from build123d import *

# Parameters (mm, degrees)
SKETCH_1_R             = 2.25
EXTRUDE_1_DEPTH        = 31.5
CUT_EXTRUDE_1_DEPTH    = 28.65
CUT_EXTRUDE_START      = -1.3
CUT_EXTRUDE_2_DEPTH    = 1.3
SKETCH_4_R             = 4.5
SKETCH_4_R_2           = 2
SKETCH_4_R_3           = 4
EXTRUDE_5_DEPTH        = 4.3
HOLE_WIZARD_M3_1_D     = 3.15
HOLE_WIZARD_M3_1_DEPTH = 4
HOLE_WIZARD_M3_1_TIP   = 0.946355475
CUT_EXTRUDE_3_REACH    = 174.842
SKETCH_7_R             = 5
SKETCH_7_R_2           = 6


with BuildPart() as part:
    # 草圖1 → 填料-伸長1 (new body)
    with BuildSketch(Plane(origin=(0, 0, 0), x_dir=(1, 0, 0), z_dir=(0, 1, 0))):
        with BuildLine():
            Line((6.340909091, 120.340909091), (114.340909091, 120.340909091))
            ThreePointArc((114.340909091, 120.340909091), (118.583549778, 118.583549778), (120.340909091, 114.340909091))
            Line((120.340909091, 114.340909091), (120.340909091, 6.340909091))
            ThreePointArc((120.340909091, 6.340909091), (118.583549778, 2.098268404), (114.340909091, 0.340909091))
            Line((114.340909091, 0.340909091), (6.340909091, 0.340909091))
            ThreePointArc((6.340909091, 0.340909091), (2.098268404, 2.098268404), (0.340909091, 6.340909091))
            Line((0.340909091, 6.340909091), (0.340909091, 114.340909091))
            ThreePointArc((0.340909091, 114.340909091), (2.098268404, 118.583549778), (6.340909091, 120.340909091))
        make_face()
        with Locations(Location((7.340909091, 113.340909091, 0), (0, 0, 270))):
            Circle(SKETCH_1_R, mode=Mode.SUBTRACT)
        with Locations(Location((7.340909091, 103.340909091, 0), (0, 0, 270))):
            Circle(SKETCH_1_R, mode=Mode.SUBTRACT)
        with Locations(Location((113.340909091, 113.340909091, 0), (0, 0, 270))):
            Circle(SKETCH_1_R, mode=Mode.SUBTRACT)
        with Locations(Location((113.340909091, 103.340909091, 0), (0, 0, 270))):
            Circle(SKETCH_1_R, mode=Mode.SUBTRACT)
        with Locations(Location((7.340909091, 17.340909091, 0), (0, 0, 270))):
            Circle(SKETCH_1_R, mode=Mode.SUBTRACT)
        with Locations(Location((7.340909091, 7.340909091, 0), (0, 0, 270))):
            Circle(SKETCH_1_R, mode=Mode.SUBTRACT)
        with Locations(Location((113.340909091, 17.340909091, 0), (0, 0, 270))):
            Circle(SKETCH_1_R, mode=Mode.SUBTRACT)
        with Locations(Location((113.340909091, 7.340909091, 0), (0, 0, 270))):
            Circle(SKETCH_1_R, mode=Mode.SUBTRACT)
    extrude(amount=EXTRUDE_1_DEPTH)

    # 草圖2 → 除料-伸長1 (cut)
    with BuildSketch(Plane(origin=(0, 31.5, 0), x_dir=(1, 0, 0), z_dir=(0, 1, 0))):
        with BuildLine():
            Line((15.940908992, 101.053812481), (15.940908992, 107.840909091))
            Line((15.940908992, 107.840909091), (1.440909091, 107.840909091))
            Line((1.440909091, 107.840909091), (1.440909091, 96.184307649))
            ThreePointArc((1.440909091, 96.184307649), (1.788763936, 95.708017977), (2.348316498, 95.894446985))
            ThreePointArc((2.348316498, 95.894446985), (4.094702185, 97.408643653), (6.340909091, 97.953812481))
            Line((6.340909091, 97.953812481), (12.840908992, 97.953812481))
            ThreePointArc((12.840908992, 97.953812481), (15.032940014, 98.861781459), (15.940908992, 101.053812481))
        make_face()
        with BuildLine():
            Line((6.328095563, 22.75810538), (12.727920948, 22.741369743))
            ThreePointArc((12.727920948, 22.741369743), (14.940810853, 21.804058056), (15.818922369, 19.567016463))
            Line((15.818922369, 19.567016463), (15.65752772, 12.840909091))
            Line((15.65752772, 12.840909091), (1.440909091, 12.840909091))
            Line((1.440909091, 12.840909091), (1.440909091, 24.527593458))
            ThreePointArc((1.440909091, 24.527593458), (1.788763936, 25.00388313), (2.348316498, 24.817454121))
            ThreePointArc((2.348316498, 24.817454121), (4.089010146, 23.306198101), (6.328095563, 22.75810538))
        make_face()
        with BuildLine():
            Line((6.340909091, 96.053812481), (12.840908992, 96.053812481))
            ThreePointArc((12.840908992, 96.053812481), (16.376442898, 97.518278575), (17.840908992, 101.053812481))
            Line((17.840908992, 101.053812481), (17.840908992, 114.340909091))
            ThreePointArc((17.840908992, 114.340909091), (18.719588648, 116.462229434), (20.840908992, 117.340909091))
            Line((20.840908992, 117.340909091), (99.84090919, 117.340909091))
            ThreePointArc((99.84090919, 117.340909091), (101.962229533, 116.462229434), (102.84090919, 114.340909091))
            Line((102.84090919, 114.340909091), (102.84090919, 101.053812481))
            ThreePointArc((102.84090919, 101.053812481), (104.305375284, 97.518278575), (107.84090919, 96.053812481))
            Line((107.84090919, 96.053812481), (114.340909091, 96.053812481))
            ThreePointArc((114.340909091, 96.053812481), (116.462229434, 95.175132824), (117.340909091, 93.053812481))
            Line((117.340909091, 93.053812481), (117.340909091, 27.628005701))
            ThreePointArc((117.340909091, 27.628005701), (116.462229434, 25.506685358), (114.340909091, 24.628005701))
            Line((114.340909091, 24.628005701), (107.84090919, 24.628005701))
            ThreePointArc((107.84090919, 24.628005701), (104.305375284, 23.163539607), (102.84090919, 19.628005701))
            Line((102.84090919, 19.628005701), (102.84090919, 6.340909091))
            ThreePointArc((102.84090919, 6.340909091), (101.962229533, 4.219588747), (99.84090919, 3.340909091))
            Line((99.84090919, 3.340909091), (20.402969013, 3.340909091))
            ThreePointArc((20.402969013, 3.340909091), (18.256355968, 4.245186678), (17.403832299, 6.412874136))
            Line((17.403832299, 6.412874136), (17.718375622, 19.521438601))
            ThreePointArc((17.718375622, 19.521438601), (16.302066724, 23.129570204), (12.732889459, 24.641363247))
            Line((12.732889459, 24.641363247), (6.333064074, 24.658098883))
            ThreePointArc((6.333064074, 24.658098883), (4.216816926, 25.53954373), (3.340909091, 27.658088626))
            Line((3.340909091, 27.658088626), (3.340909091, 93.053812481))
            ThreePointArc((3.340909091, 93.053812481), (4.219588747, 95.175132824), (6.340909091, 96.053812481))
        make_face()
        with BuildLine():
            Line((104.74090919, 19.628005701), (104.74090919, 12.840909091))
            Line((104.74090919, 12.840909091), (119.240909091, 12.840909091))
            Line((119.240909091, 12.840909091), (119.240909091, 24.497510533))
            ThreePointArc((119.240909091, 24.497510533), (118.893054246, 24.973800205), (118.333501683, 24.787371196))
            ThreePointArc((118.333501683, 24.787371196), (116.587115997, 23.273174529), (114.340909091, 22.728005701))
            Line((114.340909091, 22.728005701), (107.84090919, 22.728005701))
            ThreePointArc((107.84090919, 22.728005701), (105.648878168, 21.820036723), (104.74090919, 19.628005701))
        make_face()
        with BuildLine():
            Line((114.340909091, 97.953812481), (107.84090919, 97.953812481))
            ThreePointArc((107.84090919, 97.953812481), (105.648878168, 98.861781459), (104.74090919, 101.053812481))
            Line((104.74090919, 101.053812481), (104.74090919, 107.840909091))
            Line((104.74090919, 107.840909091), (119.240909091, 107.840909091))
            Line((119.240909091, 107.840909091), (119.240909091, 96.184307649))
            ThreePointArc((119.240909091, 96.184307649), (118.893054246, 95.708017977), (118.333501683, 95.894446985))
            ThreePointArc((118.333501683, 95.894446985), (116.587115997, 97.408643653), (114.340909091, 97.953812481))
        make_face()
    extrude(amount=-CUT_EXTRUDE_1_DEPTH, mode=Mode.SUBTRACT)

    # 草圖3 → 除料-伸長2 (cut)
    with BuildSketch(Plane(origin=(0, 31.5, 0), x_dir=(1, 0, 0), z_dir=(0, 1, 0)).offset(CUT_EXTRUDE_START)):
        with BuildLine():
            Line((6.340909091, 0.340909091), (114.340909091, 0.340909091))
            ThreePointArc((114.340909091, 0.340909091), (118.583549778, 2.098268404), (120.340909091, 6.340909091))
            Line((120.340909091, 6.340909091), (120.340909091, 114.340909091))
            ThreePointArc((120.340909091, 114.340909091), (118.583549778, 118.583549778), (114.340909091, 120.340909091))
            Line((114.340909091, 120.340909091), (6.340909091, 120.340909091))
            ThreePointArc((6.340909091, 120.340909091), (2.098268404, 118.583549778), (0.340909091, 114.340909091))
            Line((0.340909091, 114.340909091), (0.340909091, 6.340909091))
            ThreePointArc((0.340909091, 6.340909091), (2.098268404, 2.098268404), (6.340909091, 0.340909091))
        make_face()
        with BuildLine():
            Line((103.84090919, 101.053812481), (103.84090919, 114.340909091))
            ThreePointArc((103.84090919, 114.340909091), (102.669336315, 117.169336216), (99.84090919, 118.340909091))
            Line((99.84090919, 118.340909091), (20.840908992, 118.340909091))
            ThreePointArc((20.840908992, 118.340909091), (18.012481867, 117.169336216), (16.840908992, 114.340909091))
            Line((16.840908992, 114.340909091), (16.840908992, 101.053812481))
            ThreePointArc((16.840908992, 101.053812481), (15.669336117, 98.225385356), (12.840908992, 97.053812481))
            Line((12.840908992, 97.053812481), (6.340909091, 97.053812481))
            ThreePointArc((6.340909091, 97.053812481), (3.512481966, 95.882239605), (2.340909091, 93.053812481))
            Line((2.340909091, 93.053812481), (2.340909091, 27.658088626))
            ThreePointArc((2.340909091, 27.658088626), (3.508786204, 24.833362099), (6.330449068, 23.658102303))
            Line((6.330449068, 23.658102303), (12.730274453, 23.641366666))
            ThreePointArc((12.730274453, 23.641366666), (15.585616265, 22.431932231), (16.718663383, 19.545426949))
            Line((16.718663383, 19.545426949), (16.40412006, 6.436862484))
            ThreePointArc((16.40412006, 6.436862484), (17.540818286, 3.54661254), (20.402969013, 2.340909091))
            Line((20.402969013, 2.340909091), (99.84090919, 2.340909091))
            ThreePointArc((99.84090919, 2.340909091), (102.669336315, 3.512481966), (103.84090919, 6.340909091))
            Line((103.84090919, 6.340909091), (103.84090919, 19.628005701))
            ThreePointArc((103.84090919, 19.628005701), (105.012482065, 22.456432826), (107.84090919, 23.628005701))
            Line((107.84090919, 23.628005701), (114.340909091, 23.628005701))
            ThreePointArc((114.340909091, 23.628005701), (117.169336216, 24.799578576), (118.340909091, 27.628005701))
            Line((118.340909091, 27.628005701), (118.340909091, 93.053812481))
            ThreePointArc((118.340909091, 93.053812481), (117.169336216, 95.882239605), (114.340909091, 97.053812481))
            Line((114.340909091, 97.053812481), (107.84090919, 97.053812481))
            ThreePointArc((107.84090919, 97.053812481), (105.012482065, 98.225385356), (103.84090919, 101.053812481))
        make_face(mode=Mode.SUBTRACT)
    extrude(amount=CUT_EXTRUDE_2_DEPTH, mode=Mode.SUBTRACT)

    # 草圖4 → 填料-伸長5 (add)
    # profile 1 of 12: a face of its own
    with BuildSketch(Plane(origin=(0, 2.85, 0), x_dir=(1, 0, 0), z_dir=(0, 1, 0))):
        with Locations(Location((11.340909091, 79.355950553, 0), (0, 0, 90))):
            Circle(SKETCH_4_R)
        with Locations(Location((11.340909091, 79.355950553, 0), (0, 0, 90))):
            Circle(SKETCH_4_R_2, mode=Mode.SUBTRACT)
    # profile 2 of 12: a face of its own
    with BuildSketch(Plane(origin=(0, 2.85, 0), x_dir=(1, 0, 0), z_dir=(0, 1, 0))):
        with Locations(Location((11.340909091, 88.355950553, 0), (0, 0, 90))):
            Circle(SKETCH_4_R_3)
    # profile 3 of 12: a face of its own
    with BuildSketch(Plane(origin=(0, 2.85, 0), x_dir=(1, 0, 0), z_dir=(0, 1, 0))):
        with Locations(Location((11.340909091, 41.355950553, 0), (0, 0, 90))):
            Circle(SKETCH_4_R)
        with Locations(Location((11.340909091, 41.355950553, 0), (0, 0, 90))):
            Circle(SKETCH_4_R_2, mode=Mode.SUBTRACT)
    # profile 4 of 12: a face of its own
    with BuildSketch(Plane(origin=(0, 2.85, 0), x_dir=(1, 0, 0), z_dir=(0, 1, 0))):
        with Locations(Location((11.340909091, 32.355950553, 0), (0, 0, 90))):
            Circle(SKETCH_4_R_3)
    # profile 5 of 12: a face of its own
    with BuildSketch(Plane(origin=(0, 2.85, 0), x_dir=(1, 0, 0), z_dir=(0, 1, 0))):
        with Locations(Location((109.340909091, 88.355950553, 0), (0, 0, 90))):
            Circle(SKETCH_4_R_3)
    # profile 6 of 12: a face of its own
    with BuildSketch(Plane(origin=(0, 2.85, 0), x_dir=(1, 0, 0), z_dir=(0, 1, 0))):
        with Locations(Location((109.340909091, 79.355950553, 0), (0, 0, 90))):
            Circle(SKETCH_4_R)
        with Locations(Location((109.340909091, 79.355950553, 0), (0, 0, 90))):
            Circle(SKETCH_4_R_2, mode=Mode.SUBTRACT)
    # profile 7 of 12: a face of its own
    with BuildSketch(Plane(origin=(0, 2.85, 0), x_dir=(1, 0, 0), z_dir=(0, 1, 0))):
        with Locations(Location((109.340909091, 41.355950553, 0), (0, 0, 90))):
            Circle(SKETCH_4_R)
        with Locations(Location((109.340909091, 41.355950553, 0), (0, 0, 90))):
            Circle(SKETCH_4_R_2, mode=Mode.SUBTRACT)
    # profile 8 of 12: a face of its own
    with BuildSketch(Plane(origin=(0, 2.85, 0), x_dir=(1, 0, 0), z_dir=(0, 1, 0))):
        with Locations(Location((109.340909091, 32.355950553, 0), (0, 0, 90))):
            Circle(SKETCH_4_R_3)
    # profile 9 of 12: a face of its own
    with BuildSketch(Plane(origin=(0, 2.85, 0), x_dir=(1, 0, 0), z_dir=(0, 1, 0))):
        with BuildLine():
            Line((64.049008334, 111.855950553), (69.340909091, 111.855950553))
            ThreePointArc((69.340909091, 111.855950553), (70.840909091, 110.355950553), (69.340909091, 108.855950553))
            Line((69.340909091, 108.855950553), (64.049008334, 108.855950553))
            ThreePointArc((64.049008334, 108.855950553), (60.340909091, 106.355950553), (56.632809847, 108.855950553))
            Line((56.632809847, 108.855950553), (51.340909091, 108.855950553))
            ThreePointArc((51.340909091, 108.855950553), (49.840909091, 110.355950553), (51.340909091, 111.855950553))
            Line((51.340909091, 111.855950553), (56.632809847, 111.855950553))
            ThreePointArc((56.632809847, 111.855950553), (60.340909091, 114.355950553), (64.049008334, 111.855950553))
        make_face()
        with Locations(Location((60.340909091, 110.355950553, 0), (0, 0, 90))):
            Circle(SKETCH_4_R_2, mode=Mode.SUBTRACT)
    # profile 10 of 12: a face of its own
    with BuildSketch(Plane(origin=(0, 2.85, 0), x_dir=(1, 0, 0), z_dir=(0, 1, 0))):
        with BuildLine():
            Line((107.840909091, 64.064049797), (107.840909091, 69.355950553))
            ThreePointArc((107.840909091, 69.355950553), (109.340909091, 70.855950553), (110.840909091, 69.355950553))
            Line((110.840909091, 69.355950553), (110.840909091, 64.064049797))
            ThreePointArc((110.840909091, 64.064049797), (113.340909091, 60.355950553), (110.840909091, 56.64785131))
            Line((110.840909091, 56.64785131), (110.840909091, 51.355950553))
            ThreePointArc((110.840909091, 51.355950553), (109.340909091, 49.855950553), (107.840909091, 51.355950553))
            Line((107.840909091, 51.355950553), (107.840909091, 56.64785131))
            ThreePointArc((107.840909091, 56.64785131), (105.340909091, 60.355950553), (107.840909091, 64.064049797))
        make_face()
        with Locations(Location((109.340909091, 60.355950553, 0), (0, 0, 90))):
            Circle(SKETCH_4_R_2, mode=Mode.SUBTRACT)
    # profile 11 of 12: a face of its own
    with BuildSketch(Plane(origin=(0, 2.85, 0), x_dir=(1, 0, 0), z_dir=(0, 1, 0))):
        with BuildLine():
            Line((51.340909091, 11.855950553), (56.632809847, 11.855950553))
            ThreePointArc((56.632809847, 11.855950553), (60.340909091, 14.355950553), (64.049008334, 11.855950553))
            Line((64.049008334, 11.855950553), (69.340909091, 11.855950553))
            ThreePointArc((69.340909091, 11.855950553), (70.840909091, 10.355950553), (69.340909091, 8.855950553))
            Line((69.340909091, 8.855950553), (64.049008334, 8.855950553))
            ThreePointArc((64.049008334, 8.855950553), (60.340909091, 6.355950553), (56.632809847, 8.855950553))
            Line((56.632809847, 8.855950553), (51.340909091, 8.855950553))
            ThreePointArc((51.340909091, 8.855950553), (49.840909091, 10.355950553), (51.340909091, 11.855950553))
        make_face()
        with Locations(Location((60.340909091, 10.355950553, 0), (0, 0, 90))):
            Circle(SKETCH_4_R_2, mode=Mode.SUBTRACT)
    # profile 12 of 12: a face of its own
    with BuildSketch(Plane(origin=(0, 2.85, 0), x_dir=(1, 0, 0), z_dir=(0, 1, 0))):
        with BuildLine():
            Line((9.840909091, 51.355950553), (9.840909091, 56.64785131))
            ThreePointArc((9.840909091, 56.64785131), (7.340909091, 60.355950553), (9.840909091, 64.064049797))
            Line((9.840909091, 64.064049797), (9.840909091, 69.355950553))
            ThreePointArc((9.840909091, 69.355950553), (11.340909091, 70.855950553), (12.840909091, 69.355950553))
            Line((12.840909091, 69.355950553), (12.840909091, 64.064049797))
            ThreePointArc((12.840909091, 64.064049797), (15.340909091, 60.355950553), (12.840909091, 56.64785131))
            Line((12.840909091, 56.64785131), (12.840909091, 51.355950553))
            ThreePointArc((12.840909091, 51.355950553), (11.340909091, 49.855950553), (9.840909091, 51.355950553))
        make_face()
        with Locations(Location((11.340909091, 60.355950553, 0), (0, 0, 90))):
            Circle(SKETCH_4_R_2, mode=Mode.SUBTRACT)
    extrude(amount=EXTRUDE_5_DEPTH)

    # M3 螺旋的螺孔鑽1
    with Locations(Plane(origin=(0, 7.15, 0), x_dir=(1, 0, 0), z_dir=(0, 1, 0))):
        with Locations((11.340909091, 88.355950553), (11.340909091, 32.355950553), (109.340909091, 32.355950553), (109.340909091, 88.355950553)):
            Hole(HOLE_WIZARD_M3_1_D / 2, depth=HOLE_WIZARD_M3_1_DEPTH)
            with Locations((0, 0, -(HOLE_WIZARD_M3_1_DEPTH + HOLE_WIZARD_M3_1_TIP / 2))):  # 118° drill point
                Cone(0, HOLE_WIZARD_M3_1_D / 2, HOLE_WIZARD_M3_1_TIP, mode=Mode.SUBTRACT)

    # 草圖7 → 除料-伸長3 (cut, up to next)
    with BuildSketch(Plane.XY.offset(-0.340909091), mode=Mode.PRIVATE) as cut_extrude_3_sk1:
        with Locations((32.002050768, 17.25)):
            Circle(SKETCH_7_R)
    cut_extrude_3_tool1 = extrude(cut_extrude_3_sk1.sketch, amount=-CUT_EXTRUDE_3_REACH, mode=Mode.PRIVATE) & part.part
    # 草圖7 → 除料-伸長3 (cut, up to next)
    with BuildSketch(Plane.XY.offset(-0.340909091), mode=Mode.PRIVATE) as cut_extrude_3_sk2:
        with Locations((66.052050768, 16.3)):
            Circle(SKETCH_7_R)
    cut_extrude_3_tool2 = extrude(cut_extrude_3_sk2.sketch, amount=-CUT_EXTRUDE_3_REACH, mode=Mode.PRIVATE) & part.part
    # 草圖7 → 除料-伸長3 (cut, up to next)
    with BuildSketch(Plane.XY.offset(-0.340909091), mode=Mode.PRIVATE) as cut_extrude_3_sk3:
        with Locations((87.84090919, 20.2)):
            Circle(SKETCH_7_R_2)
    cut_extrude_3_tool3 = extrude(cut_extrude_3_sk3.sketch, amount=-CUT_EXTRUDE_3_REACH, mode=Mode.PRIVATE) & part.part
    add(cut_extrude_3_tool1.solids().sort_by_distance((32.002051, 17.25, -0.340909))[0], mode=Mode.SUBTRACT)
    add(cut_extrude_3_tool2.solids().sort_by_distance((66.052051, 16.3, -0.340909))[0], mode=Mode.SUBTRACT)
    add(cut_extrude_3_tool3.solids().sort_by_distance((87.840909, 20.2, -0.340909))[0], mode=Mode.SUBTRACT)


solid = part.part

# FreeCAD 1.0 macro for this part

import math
import FreeCAD as App
import Part
import Sketcher
from FreeCAD import Vector

doc = App.newDocument("Part")
body = doc.addObject("PartDesign::Body", "Body")

# Sketch on XZ plane
sketch1 = body.newObject("Sketcher::SketchObject", "Sketch")
sketch1.AttachmentSupport = (doc.getObject("XZ_Plane"), [""])
sketch1.MapMode = "FlatFace"
sketch1.addGeometry([
    Part.LineSegment(Vector(114.3, -120.3, 0), Vector(6.3, -120.3, 0)),  # 0
    Part.ArcOfCircle(Part.Circle(Vector(6.3, -114.3, 0), Vector(0, 0, 1), 6), math.radians(180), math.radians(270)),  # 1
    Part.LineSegment(Vector(0.3, -114.3, 0), Vector(0.3, -6.3, 0)),  # 2
    Part.ArcOfCircle(Part.Circle(Vector(6.3, -6.3, 0), Vector(0, 0, 1), 6), math.radians(90), math.radians(180)),  # 3
    Part.LineSegment(Vector(6.3, -0.3, 0), Vector(114.3, -0.3, 0)),  # 4
    Part.ArcOfCircle(Part.Circle(Vector(114.3, -6.3, 0), Vector(0, 0, 1), 6), math.radians(0), math.radians(90)),  # 5
    Part.LineSegment(Vector(120.3, -6.3, 0), Vector(120.3, -114.3, 0)),  # 6
    Part.ArcOfCircle(Part.Circle(Vector(114.3, -114.3, 0), Vector(0, 0, 1), 6), math.radians(-90), math.radians(0)),  # 7
    Part.Circle(Vector(113.3, -7.3, 0), Vector(0, 0, 1), 2.2),  # 8
    Part.Circle(Vector(113.3, -17.3, 0), Vector(0, 0, 1), 2.2),  # 9
    Part.Circle(Vector(7.3, -7.3, 0), Vector(0, 0, 1), 2.2),  # 10
    Part.Circle(Vector(7.3, -17.3, 0), Vector(0, 0, 1), 2.2),  # 11
    Part.Circle(Vector(113.3, -103.3, 0), Vector(0, 0, 1), 2.2),  # 12
    Part.Circle(Vector(113.3, -113.3, 0), Vector(0, 0, 1), 2.2),  # 13
    Part.Circle(Vector(7.3, -103.3, 0), Vector(0, 0, 1), 2.2),  # 14
    Part.Circle(Vector(7.3, -113.3, 0), Vector(0, 0, 1), 2.2),  # 15
], False)
sketch1.addConstraint([
    Sketcher.Constraint("Tangent", 0, 2, 1, 2),
    Sketcher.Constraint("Tangent", 1, 1, 2, 1),
    Sketcher.Constraint("Tangent", 2, 2, 3, 2),
    Sketcher.Constraint("Tangent", 3, 1, 4, 1),
    Sketcher.Constraint("Tangent", 4, 2, 5, 2),
    Sketcher.Constraint("Tangent", 5, 1, 6, 1),
    Sketcher.Constraint("Tangent", 6, 2, 7, 2),
    Sketcher.Constraint("Tangent", 7, 1, 0, 1),
    Sketcher.Constraint("Horizontal", 0),
    Sketcher.Constraint("Vertical", 2),
    Sketcher.Constraint("Horizontal", 4),
    Sketcher.Constraint("Vertical", 6),
    Sketcher.Constraint("Equal", 1, 3),
    Sketcher.Constraint("Equal", 3, 5),
    Sketcher.Constraint("Equal", 5, 7),
    Sketcher.Constraint("Equal", 8, 9),
    Sketcher.Constraint("Equal", 9, 10),
    Sketcher.Constraint("Equal", 10, 11),
    Sketcher.Constraint("Equal", 11, 12),
    Sketcher.Constraint("Equal", 12, 13),
    Sketcher.Constraint("Equal", 13, 14),
    Sketcher.Constraint("Equal", 14, 15),
    Sketcher.Constraint("Horizontal", 8, 3, 10, 3),
    Sketcher.Constraint("Horizontal", 9, 3, 11, 3),
    Sketcher.Constraint("Horizontal", 12, 3, 14, 3),
    Sketcher.Constraint("Horizontal", 13, 3, 15, 3),
    Sketcher.Constraint("Vertical", 8, 3, 9, 3),
    Sketcher.Constraint("Vertical", 10, 3, 11, 3),
    Sketcher.Constraint("Vertical", 9, 3, 12, 3),
    Sketcher.Constraint("Vertical", 12, 3, 13, 3),
    Sketcher.Constraint("Vertical", 11, 3, 14, 3),
    Sketcher.Constraint("Vertical", 14, 3, 15, 3),
    Sketcher.Constraint("Equal", 4, 2),
    Sketcher.Constraint("Radius", 1, 6.0),
    Sketcher.Constraint("Diameter", 8, 4.5),
    Sketcher.Constraint("DistanceX", 0, 2, 0, 1, 108.0),
    Sketcher.Constraint("DistanceX", 8, 3, 5, 3, 1.0),
    Sketcher.Constraint("DistanceY", 8, 3, 5, 3, 1.0),
    Sketcher.Constraint("DistanceY", 9, 3, 8, 3, 10.0),
    Sketcher.Constraint("DistanceX", 3, 3, 10, 3, 1.0),
    Sketcher.Constraint("DistanceY", 7, 3, 12, 3, 11.0),
    Sketcher.Constraint("DistanceY", 7, 3, 13, 3, 1.0),
    Sketcher.Constraint("DistanceX", -1, 1, 1, 3, 6.340909),
    Sketcher.Constraint("DistanceY", 1, 3, -1, 1, 114.340909),
])
pad1 = body.newObject("PartDesign::Pad", "Pad")
pad1.Profile = sketch1
pad1.Length = 31.5
pad1.Reversed = True

# Sketch on XZ plane
sketch2 = body.newObject("Sketcher::SketchObject", "Sketch001")
sketch2.AttachmentSupport = (doc.getObject("XZ_Plane"), [""])
sketch2.MapMode = "FlatFace"
sketch2.AttachmentOffset = App.Placement(Vector(0, 0, -31.5), App.Rotation())
sketch2.addGeometry([
    Part.LineSegment(Vector(15.9, -101.1, 0), Vector(15.9, -107.8, 0)),  # 0
    Part.LineSegment(Vector(15.9, -107.8, 0), Vector(1.4, -107.8, 0)),  # 1
    Part.LineSegment(Vector(1.4, -107.8, 0), Vector(1.4, -96.2, 0)),  # 2
    Part.ArcOfCircle(Part.Circle(Vector(1.9, -96.2, 0), Vector(0, 0, 1), 0.5), math.radians(35), math.radians(180)),  # 3
    Part.ArcOfCircle(Part.Circle(Vector(6.3, -93.1, 0), Vector(0, 0, 1), 4.9), math.radians(-145), math.radians(-90)),  # 4
    Part.LineSegment(Vector(6.3, -98, 0), Vector(12.8, -98, 0)),  # 5
    Part.ArcOfCircle(Part.Circle(Vector(12.8, -101.1, 0), Vector(0, 0, 1), 3.1), math.radians(0), math.radians(90)),  # 6
    Part.LineSegment(Vector(12.7, -22.7, 0), Vector(6.3, -22.8, 0)),  # 7
    Part.ArcOfCircle(Part.Circle(Vector(6.3, -27.7, 0), Vector(0, 0, 1), 4.9), math.radians(90), math.radians(145)),  # 8
    Part.ArcOfCircle(Part.Circle(Vector(1.9, -24.5, 0), Vector(0, 0, 1), 0.5), math.radians(180), math.radians(325)),  # 9
    Part.LineSegment(Vector(1.4, -24.5, 0), Vector(1.4, -12.8, 0)),  # 10
    Part.LineSegment(Vector(1.4, -12.8, 0), Vector(15.7, -12.8, 0)),  # 11
    Part.LineSegment(Vector(15.7, -12.8, 0), Vector(15.8, -19.6, 0)),  # 12
    Part.ArcOfCircle(Part.Circle(Vector(12.7, -19.6, 0), Vector(0, 0, 1), 3.1), math.radians(-90), math.radians(1)),  # 13
    Part.LineSegment(Vector(12.8, -96.1, 0), Vector(6.3, -96.1, 0)),  # 14
    Part.ArcOfCircle(Part.Circle(Vector(6.3, -93.1, 0), Vector(0, 0, 1), 3), math.radians(180), math.radians(270)),  # 15
    Part.LineSegment(Vector(3.3, -93.1, 0), Vector(3.3, -27.7, 0)),  # 16
    Part.ArcOfCircle(Part.Circle(Vector(6.3, -27.7, 0), Vector(0, 0, 1), 3), math.radians(90), math.radians(180)),  # 17
    Part.LineSegment(Vector(6.3, -24.7, 0), Vector(12.7, -24.6, 0)),  # 18
    Part.ArcOfCircle(Part.Circle(Vector(12.7, -19.6, 0), Vector(0, 0, 1), 5), math.radians(-90), math.radians(1)),  # 19
    Part.LineSegment(Vector(17.7, -19.5, 0), Vector(17.4, -6.4, 0)),  # 20
    Part.ArcOfCircle(Part.Circle(Vector(20.4, -6.3, 0), Vector(0, 0, 1), 3), math.radians(90), math.radians(181)),  # 21
    Part.LineSegment(Vector(20.4, -3.3, 0), Vector(99.8, -3.3, 0)),  # 22
    Part.ArcOfCircle(Part.Circle(Vector(99.8, -6.3, 0), Vector(0, 0, 1), 3), math.radians(0), math.radians(90)),  # 23
    Part.LineSegment(Vector(102.8, -6.3, 0), Vector(102.8, -19.6, 0)),  # 24
    Part.ArcOfCircle(Part.Circle(Vector(107.8, -19.6, 0), Vector(0, 0, 1), 5), math.radians(180), math.radians(270)),  # 25
    Part.LineSegment(Vector(107.8, -24.6, 0), Vector(114.3, -24.6, 0)),  # 26
    Part.ArcOfCircle(Part.Circle(Vector(114.3, -27.6, 0), Vector(0, 0, 1), 3), math.radians(0), math.radians(90)),  # 27
    Part.LineSegment(Vector(117.3, -27.6, 0), Vector(117.3, -93.1, 0)),  # 28
    Part.ArcOfCircle(Part.Circle(Vector(114.3, -93.1, 0), Vector(0, 0, 1), 3), math.radians(-90), math.radians(0)),  # 29
    Part.LineSegment(Vector(114.3, -96.1, 0), Vector(107.8, -96.1, 0)),  # 30
    Part.ArcOfCircle(Part.Circle(Vector(107.8, -101.1, 0), Vector(0, 0, 1), 5), math.radians(90), math.radians(180)),  # 31
    Part.LineSegment(Vector(102.8, -101.1, 0), Vector(102.8, -114.3, 0)),  # 32
    Part.ArcOfCircle(Part.Circle(Vector(99.8, -114.3, 0), Vector(0, 0, 1), 3), math.radians(-90), math.radians(0)),  # 33
    Part.LineSegment(Vector(99.8, -117.3, 0), Vector(20.8, -117.3, 0)),  # 34
    Part.ArcOfCircle(Part.Circle(Vector(20.8, -114.3, 0), Vector(0, 0, 1), 3), math.radians(180), math.radians(270)),  # 35
    Part.LineSegment(Vector(17.8, -114.3, 0), Vector(17.8, -101.1, 0)),  # 36
    Part.ArcOfCircle(Part.Circle(Vector(12.8, -101.1, 0), Vector(0, 0, 1), 5), math.radians(0), math.radians(90)),  # 37
    Part.LineSegment(Vector(104.7, -19.6, 0), Vector(104.7, -12.8, 0)),  # 38
    Part.LineSegment(Vector(104.7, -12.8, 0), Vector(119.2, -12.8, 0)),  # 39
    Part.LineSegment(Vector(119.2, -12.8, 0), Vector(119.2, -24.5, 0)),  # 40
    Part.ArcOfCircle(Part.Circle(Vector(118.7, -24.5, 0), Vector(0, 0, 1), 0.5), math.radians(-145), math.radians(0)),  # 41
    Part.ArcOfCircle(Part.Circle(Vector(114.3, -27.6, 0), Vector(0, 0, 1), 4.9), math.radians(35), math.radians(90)),  # 42
    Part.LineSegment(Vector(114.3, -22.7, 0), Vector(107.8, -22.7, 0)),  # 43
    Part.ArcOfCircle(Part.Circle(Vector(107.8, -19.6, 0), Vector(0, 0, 1), 3.1), math.radians(180), math.radians(270)),  # 44
    Part.LineSegment(Vector(107.8, -98, 0), Vector(114.3, -98, 0)),  # 45
    Part.ArcOfCircle(Part.Circle(Vector(114.3, -93.1, 0), Vector(0, 0, 1), 4.9), math.radians(-90), math.radians(-35)),  # 46
    Part.ArcOfCircle(Part.Circle(Vector(118.7, -96.2, 0), Vector(0, 0, 1), 0.5), math.radians(0), math.radians(145)),  # 47
    Part.LineSegment(Vector(119.2, -96.2, 0), Vector(119.2, -107.8, 0)),  # 48
    Part.LineSegment(Vector(119.2, -107.8, 0), Vector(104.7, -107.8, 0)),  # 49
    Part.LineSegment(Vector(104.7, -107.8, 0), Vector(104.7, -101.1, 0)),  # 50
    Part.ArcOfCircle(Part.Circle(Vector(107.8, -101.1, 0), Vector(0, 0, 1), 3.1), math.radians(90), math.radians(180)),  # 51
], False)
sketch2.addConstraint([
    Sketcher.Constraint("Coincident", 0, 2, 1, 1),
    Sketcher.Constraint("Coincident", 1, 2, 2, 1),
    Sketcher.Constraint("Tangent", 2, 2, 3, 2),
    Sketcher.Constraint("Tangent", 3, 1, 4, 1),
    Sketcher.Constraint("Tangent", 4, 2, 5, 1),
    Sketcher.Constraint("Tangent", 5, 2, 6, 2),
    Sketcher.Constraint("Tangent", 6, 1, 0, 1),
    Sketcher.Constraint("Tangent", 7, 2, 8, 1),
    Sketcher.Constraint("Tangent", 8, 2, 9, 2),
    Sketcher.Constraint("Tangent", 9, 1, 10, 1),
    Sketcher.Constraint("Coincident", 10, 2, 11, 1),
    Sketcher.Constraint("Coincident", 11, 2, 12, 1),
    Sketcher.Constraint("Tangent", 12, 2, 13, 2),
    Sketcher.Constraint("Tangent", 13, 1, 7, 1),
    Sketcher.Constraint("Tangent", 14, 2, 15, 2),
    Sketcher.Constraint("Tangent", 15, 1, 16, 1),
    Sketcher.Constraint("Tangent", 16, 2, 17, 2),
    Sketcher.Constraint("Tangent", 17, 1, 18, 1),
    Sketcher.Constraint("Tangent", 18, 2, 19, 1),
    Sketcher.Constraint("Tangent", 19, 2, 20, 1),
    Sketcher.Constraint("Tangent", 20, 2, 21, 2),
    Sketcher.Constraint("Tangent", 21, 1, 22, 1),
    Sketcher.Constraint("Tangent", 22, 2, 23, 2),
    Sketcher.Constraint("Tangent", 23, 1, 24, 1),
    Sketcher.Constraint("Tangent", 24, 2, 25, 1),
    Sketcher.Constraint("Tangent", 25, 2, 26, 1),
    Sketcher.Constraint("Tangent", 26, 2, 27, 2),
    Sketcher.Constraint("Tangent", 27, 1, 28, 1),
    Sketcher.Constraint("Tangent", 28, 2, 29, 2),
    Sketcher.Constraint("Tangent", 29, 1, 30, 1),
    Sketcher.Constraint("Tangent", 30, 2, 31, 1),
    Sketcher.Constraint("Tangent", 31, 2, 32, 1),
    Sketcher.Constraint("Tangent", 32, 2, 33, 2),
    Sketcher.Constraint("Tangent", 33, 1, 34, 1),
    Sketcher.Constraint("Tangent", 34, 2, 35, 2),
    Sketcher.Constraint("Tangent", 35, 1, 36, 1),
    Sketcher.Constraint("Tangent", 36, 2, 37, 1),
    Sketcher.Constraint("Tangent", 37, 2, 14, 1),
    Sketcher.Constraint("Coincident", 38, 2, 39, 1),
    Sketcher.Constraint("Coincident", 39, 2, 40, 1),
    Sketcher.Constraint("Tangent", 40, 2, 41, 2),
    Sketcher.Constraint("Tangent", 41, 1, 42, 1),
    Sketcher.Constraint("Tangent", 42, 2, 43, 1),
    Sketcher.Constraint("Tangent", 43, 2, 44, 2),
    Sketcher.Constraint("Tangent", 44, 1, 38, 1),
    Sketcher.Constraint("Tangent", 45, 2, 46, 1),
    Sketcher.Constraint("Tangent", 46, 2, 47, 2),
    Sketcher.Constraint("Tangent", 47, 1, 48, 1),
    Sketcher.Constraint("Coincident", 48, 2, 49, 1),
    Sketcher.Constraint("Coincident", 49, 2, 50, 1),
    Sketcher.Constraint("Tangent", 50, 2, 51, 2),
    Sketcher.Constraint("Tangent", 51, 1, 45, 1),
    Sketcher.Constraint("Vertical", 0),
    Sketcher.Constraint("Horizontal", 1),
    Sketcher.Constraint("Vertical", 2),
    Sketcher.Constraint("Horizontal", 5),
    Sketcher.Constraint("Vertical", 10),
    Sketcher.Constraint("Horizontal", 11),
    Sketcher.Constraint("Horizontal", 14),
    Sketcher.Constraint("Vertical", 16),
    Sketcher.Constraint("Horizontal", 22),
    Sketcher.Constraint("Vertical", 24),
    Sketcher.Constraint("Horizontal", 26),
    Sketcher.Constraint("Vertical", 28),
    Sketcher.Constraint("Horizontal", 30),
    Sketcher.Constraint("Vertical", 32),
    Sketcher.Constraint("Horizontal", 34),
    Sketcher.Constraint("Vertical", 36),
    Sketcher.Constraint("Vertical", 38),
    Sketcher.Constraint("Horizontal", 39),
    Sketcher.Constraint("Vertical", 40),
    Sketcher.Constraint("Horizontal", 43),
    Sketcher.Constraint("Horizontal", 45),
    Sketcher.Constraint("Vertical", 48),
    Sketcher.Constraint("Horizontal", 49),
    Sketcher.Constraint("Vertical", 50),
    Sketcher.Constraint("Coincident", 15, 3, 4, 3),
    Sketcher.Constraint("Coincident", 17, 3, 8, 3),
    Sketcher.Constraint("Coincident", 19, 3, 13, 3),
    Sketcher.Constraint("Coincident", 37, 3, 6, 3),
    Sketcher.Constraint("Coincident", 42, 3, 27, 3),
    Sketcher.Constraint("Coincident", 44, 3, 25, 3),
    Sketcher.Constraint("Coincident", 46, 3, 29, 3),
    Sketcher.Constraint("Coincident", 51, 3, 31, 3),
    Sketcher.Constraint("Equal", 4, 8),
    Sketcher.Constraint("Equal", 3, 9),
    Sketcher.Constraint("Equal", 6, 13),
    Sketcher.Constraint("Equal", 15, 17),
    Sketcher.Constraint("Equal", 17, 21),
    Sketcher.Constraint("Equal", 21, 23),
    Sketcher.Constraint("Equal", 19, 25),
    Sketcher.Constraint("Equal", 23, 27),
    Sketcher.Constraint("Equal", 27, 29),
    Sketcher.Constraint("Equal", 25, 31),
    Sketcher.Constraint("Equal", 29, 33),
    Sketcher.Constraint("Equal", 33, 35),
    Sketcher.Constraint("Equal", 31, 37),
    Sketcher.Constraint("Equal", 9, 41),
    Sketcher.Constraint("Equal", 8, 42),
    Sketcher.Constraint("Equal", 42, 46),
    Sketcher.Constraint("Equal", 41, 47),
    Sketcher.Constraint("Parallel", 12, 20),
    Sketcher.Constraint("Horizontal", 15, 3, 29, 3),
    Sketcher.Constraint("Horizontal", 3, 3, 47, 3),
    Sketcher.Constraint("Horizontal", 11, 2, 38, 2),
    Sketcher.Constraint("Horizontal", 1, 2, 48, 2),
    Sketcher.Constraint("Vertical", 3, 3, 9, 3),
    Sketcher.Constraint("Vertical", 25, 3, 31, 3),
    Sketcher.Constraint("Vertical", 41, 3, 47, 3),
    Sketcher.Constraint("Equal", 14, 26),
    Sketcher.Constraint("Equal", 24, 32),
    Sketcher.Constraint("Equal", 0, 38),
    Sketcher.Constraint("Radius", 15, 3.0),
    Sketcher.Constraint("Radius", 19, 5.0),
    Sketcher.Constraint("Radius", 3, 0.5),
    Sketcher.Constraint("Radius", 4, 4.9),
    Sketcher.Constraint("DistanceX", 34, 2, 34, 1, 79.0),
    Sketcher.Constraint("DistanceX", 1, 2, 1, 1, 14.5),
    Sketcher.Constraint("DistanceX", 5, 1, 5, 2, 6.5),
    Sketcher.Constraint("DistanceY", 2, 1, 2, 2, 11.656601),
    Sketcher.Constraint("DistanceX", 11, 1, 11, 2, 14.216619),
    Sketcher.Constraint("DistanceX", 22, 1, 22, 2, 79.43794),
    Sketcher.Constraint("DistanceY", 17, 1, -1, 1, 24.658099),
    Sketcher.Constraint("DistanceX", -1, 1, 41, 1, 118.333502),
    Sketcher.Constraint("DistanceY", 10, 1, 10, 2, 11.686684),
    Sketcher.Constraint("DistanceY", 16, 1, 16, 2, 65.395724),
    Sketcher.Constraint("DistanceY", 24, 2, 24, 1, 13.287097),
    Sketcher.Constraint("DistanceY", 13, 3, -1, 1, 19.64138),
])
pocket1 = body.newObject("PartDesign::Pocket", "Pocket")
pocket1.Profile = sketch2
pocket1.Length = 28.65
pocket1.Reversed = True

# Sketch on XZ plane
sketch3 = body.newObject("Sketcher::SketchObject", "Sketch002")
sketch3.AttachmentSupport = (doc.getObject("XZ_Plane"), [""])
sketch3.MapMode = "FlatFace"
sketch3.AttachmentOffset = App.Placement(Vector(0, 0, -30.2), App.Rotation())
sketch3.addGeometry([
    Part.LineSegment(Vector(6.3, -0.3, 0), Vector(114.3, -0.3, 0)),  # 0
    Part.ArcOfCircle(Part.Circle(Vector(114.3, -6.3, 0), Vector(0, 0, 1), 6), math.radians(0), math.radians(90)),  # 1
    Part.LineSegment(Vector(120.3, -6.3, 0), Vector(120.3, -114.3, 0)),  # 2
    Part.ArcOfCircle(Part.Circle(Vector(114.3, -114.3, 0), Vector(0, 0, 1), 6), math.radians(-90), math.radians(0)),  # 3
    Part.LineSegment(Vector(114.3, -120.3, 0), Vector(6.3, -120.3, 0)),  # 4
    Part.ArcOfCircle(Part.Circle(Vector(6.3, -114.3, 0), Vector(0, 0, 1), 6), math.radians(180), math.radians(270)),  # 5
    Part.LineSegment(Vector(0.3, -114.3, 0), Vector(0.3, -6.3, 0)),  # 6
    Part.ArcOfCircle(Part.Circle(Vector(6.3, -6.3, 0), Vector(0, 0, 1), 6), math.radians(90), math.radians(180)),  # 7
    Part.LineSegment(Vector(103.8, -114.3, 0), Vector(103.8, -101.1, 0)),  # 8
    Part.ArcOfCircle(Part.Circle(Vector(107.8, -101.1, 0), Vector(0, 0, 1), 4), math.radians(90), math.radians(180)),  # 9
    Part.LineSegment(Vector(107.8, -97.1, 0), Vector(114.3, -97.1, 0)),  # 10
    Part.ArcOfCircle(Part.Circle(Vector(114.3, -93.1, 0), Vector(0, 0, 1), 4), math.radians(-90), math.radians(0)),  # 11
    Part.LineSegment(Vector(118.3, -93.1, 0), Vector(118.3, -27.6, 0)),  # 12
    Part.ArcOfCircle(Part.Circle(Vector(114.3, -27.6, 0), Vector(0, 0, 1), 4), math.radians(0), math.radians(90)),  # 13
    Part.LineSegment(Vector(114.3, -23.6, 0), Vector(107.8, -23.6, 0)),  # 14
    Part.ArcOfCircle(Part.Circle(Vector(107.8, -19.6, 0), Vector(0, 0, 1), 4), math.radians(180), math.radians(270)),  # 15
    Part.LineSegment(Vector(103.8, -19.6, 0), Vector(103.8, -6.3, 0)),  # 16
    Part.ArcOfCircle(Part.Circle(Vector(99.8, -6.3, 0), Vector(0, 0, 1), 4), math.radians(0), math.radians(90)),  # 17
    Part.LineSegment(Vector(99.8, -2.3, 0), Vector(20.4, -2.3, 0)),  # 18
    Part.ArcOfCircle(Part.Circle(Vector(20.4, -6.3, 0), Vector(0, 0, 1), 4), math.radians(90), math.radians(181)),  # 19
    Part.LineSegment(Vector(16.4, -6.4, 0), Vector(16.7, -19.5, 0)),  # 20
    Part.ArcOfCircle(Part.Circle(Vector(12.7, -19.6, 0), Vector(0, 0, 1), 4), math.radians(-90), math.radians(1)),  # 21
    Part.LineSegment(Vector(12.7, -23.6, 0), Vector(6.3, -23.7, 0)),  # 22
    Part.ArcOfCircle(Part.Circle(Vector(6.3, -27.7, 0), Vector(0, 0, 1), 4), math.radians(90), math.radians(180)),  # 23
    Part.LineSegment(Vector(2.3, -27.7, 0), Vector(2.3, -93.1, 0)),  # 24
    Part.ArcOfCircle(Part.Circle(Vector(6.3, -93.1, 0), Vector(0, 0, 1), 4), math.radians(-180), math.radians(-90)),  # 25
    Part.LineSegment(Vector(6.3, -97.1, 0), Vector(12.8, -97.1, 0)),  # 26
    Part.ArcOfCircle(Part.Circle(Vector(12.8, -101.1, 0), Vector(0, 0, 1), 4), math.radians(0), math.radians(90)),  # 27
    Part.LineSegment(Vector(16.8, -101.1, 0), Vector(16.8, -114.3, 0)),  # 28
    Part.ArcOfCircle(Part.Circle(Vector(20.8, -114.3, 0), Vector(0, 0, 1), 4), math.radians(180), math.radians(270)),  # 29
    Part.LineSegment(Vector(20.8, -118.3, 0), Vector(99.8, -118.3, 0)),  # 30
    Part.ArcOfCircle(Part.Circle(Vector(99.8, -114.3, 0), Vector(0, 0, 1), 4), math.radians(-90), math.radians(0)),  # 31
], False)
sketch3.addConstraint([
    Sketcher.Constraint("Tangent", 0, 2, 1, 2),
    Sketcher.Constraint("Tangent", 1, 1, 2, 1),
    Sketcher.Constraint("Tangent", 2, 2, 3, 2),
    Sketcher.Constraint("Tangent", 3, 1, 4, 1),
    Sketcher.Constraint("Tangent", 4, 2, 5, 2),
    Sketcher.Constraint("Tangent", 5, 1, 6, 1),
    Sketcher.Constraint("Tangent", 6, 2, 7, 2),
    Sketcher.Constraint("Tangent", 7, 1, 0, 1),
    Sketcher.Constraint("Tangent", 8, 2, 9, 2),
    Sketcher.Constraint("Tangent", 9, 1, 10, 1),
    Sketcher.Constraint("Tangent", 10, 2, 11, 1),
    Sketcher.Constraint("Tangent", 11, 2, 12, 1),
    Sketcher.Constraint("Tangent", 12, 2, 13, 1),
    Sketcher.Constraint("Tangent", 13, 2, 14, 1),
    Sketcher.Constraint("Tangent", 14, 2, 15, 2),
    Sketcher.Constraint("Tangent", 15, 1, 16, 1),
    Sketcher.Constraint("Tangent", 16, 2, 17, 1),
    Sketcher.Constraint("Tangent", 17, 2, 18, 1),
    Sketcher.Constraint("Tangent", 18, 2, 19, 1),
    Sketcher.Constraint("Tangent", 19, 2, 20, 1),
    Sketcher.Constraint("Tangent", 20, 2, 21, 2),
    Sketcher.Constraint("Tangent", 21, 1, 22, 1),
    Sketcher.Constraint("Tangent", 22, 2, 23, 1),
    Sketcher.Constraint("Tangent", 23, 2, 24, 1),
    Sketcher.Constraint("Tangent", 24, 2, 25, 1),
    Sketcher.Constraint("Tangent", 25, 2, 26, 1),
    Sketcher.Constraint("Tangent", 26, 2, 27, 2),
    Sketcher.Constraint("Tangent", 27, 1, 28, 1),
    Sketcher.Constraint("Tangent", 28, 2, 29, 1),
    Sketcher.Constraint("Tangent", 29, 2, 30, 1),
    Sketcher.Constraint("Tangent", 30, 2, 31, 1),
    Sketcher.Constraint("Tangent", 31, 2, 8, 1),
    Sketcher.Constraint("Horizontal", 0),
    Sketcher.Constraint("Vertical", 2),
    Sketcher.Constraint("Horizontal", 4),
    Sketcher.Constraint("Vertical", 6),
    Sketcher.Constraint("Vertical", 8),
    Sketcher.Constraint("Horizontal", 10),
    Sketcher.Constraint("Vertical", 12),
    Sketcher.Constraint("Horizontal", 14),
    Sketcher.Constraint("Vertical", 16),
    Sketcher.Constraint("Horizontal", 18),
    Sketcher.Constraint("Vertical", 24),
    Sketcher.Constraint("Horizontal", 26),
    Sketcher.Constraint("Vertical", 28),
    Sketcher.Constraint("Horizontal", 30),
    Sketcher.Constraint("Equal", 1, 3),
    Sketcher.Constraint("Equal", 3, 5),
    Sketcher.Constraint("Equal", 5, 7),
    Sketcher.Constraint("Equal", 9, 11),
    Sketcher.Constraint("Equal", 11, 13),
    Sketcher.Constraint("Equal", 13, 15),
    Sketcher.Constraint("Equal", 15, 17),
    Sketcher.Constraint("Equal", 17, 19),
    Sketcher.Constraint("Equal", 19, 21),
    Sketcher.Constraint("Equal", 21, 23),
    Sketcher.Constraint("Equal", 23, 25),
    Sketcher.Constraint("Equal", 25, 27),
    Sketcher.Constraint("Equal", 27, 29),
    Sketcher.Constraint("Equal", 29, 31),
    Sketcher.Constraint("Horizontal", 7, 3, 17, 3),
    Sketcher.Constraint("Horizontal", 11, 3, 25, 3),
    Sketcher.Constraint("Horizontal", 5, 3, 29, 3),
    Sketcher.Constraint("Vertical", 3, 3, 11, 3),
    Sketcher.Constraint("Vertical", 9, 3, 15, 3),
    Sketcher.Constraint("Vertical", 7, 3, 23, 3),
    Sketcher.Constraint("Equal", 14, 26),
    Sketcher.Constraint("Equal", 4, 2),
    Sketcher.Constraint("Equal", 8, 16),
    Sketcher.Constraint("Radius", 1, 6.0),
    Sketcher.Constraint("Radius", 9, 4.0),
    Sketcher.Constraint("DistanceX", 0, 1, 0, 2, 108.0),
    Sketcher.Constraint("DistanceX", 30, 1, 30, 2, 79.0),
    Sketcher.Constraint("DistanceX", 18, 2, 18, 1, 79.43794),
    Sketcher.Constraint("DistanceY", 8, 1, 8, 2, 13.287097),
    Sketcher.Constraint("DistanceY", 24, 2, 24, 1, 65.395724),
    Sketcher.Constraint("DistanceX", -1, 1, 1, 3, 114.340909),
    Sketcher.Constraint("DistanceY", 1, 3, -1, 1, 6.340909),
    Sketcher.Constraint("DistanceY", 21, 3, -1, 1, 19.64138),
    Sketcher.Constraint("DistanceX", -1, 1, 19, 2, 16.40412),
])
pocket2 = body.newObject("PartDesign::Pocket", "Pocket001")
pocket2.Profile = sketch3
pocket2.Length = 1.3

# Sketch on XZ plane
sketch4 = body.newObject("Sketcher::SketchObject", "Sketch003")
sketch4.AttachmentSupport = (doc.getObject("XZ_Plane"), [""])
sketch4.MapMode = "FlatFace"
sketch4.AttachmentOffset = App.Placement(Vector(0, 0, -2.85), App.Rotation())
sketch4.addGeometry([
    Part.Circle(Vector(11.3, -79.4, 0), Vector(0, 0, 1), 4.5),  # 0
    Part.Circle(Vector(11.3, -79.4, 0), Vector(0, 0, 1), 2),  # 1
    Part.Circle(Vector(11.3, -88.4, 0), Vector(0, 0, 1), 4),  # 2
    Part.Circle(Vector(11.3, -41.4, 0), Vector(0, 0, 1), 4.5),  # 3
    Part.Circle(Vector(11.3, -41.4, 0), Vector(0, 0, 1), 2),  # 4
    Part.Circle(Vector(11.3, -32.4, 0), Vector(0, 0, 1), 4),  # 5
    Part.Circle(Vector(109.3, -88.4, 0), Vector(0, 0, 1), 4),  # 6
    Part.Circle(Vector(109.3, -79.4, 0), Vector(0, 0, 1), 4.5),  # 7
    Part.Circle(Vector(109.3, -79.4, 0), Vector(0, 0, 1), 2),  # 8
    Part.Circle(Vector(109.3, -41.4, 0), Vector(0, 0, 1), 4.5),  # 9
    Part.Circle(Vector(109.3, -41.4, 0), Vector(0, 0, 1), 2),  # 10
    Part.Circle(Vector(109.3, -32.4, 0), Vector(0, 0, 1), 4),  # 11
    Part.LineSegment(Vector(69.3, -111.9, 0), Vector(64, -111.9, 0)),  # 12
    Part.ArcOfCircle(Part.Circle(Vector(60.3, -110.4, 0), Vector(0, 0, 1), 4), math.radians(-158), math.radians(-22)),  # 13
    Part.LineSegment(Vector(56.6, -111.9, 0), Vector(51.3, -111.9, 0)),  # 14
    Part.ArcOfCircle(Part.Circle(Vector(51.3, -110.4, 0), Vector(0, 0, 1), 1.5), math.radians(90), math.radians(270)),  # 15
    Part.LineSegment(Vector(51.3, -108.9, 0), Vector(56.6, -108.9, 0)),  # 16
    Part.ArcOfCircle(Part.Circle(Vector(60.3, -110.4, 0), Vector(0, 0, 1), 4), math.radians(22), math.radians(158)),  # 17
    Part.LineSegment(Vector(64, -108.9, 0), Vector(69.3, -108.9, 0)),  # 18
    Part.ArcOfCircle(Part.Circle(Vector(69.3, -110.4, 0), Vector(0, 0, 1), 1.5), math.radians(-90), math.radians(90)),  # 19
    Part.Circle(Vector(60.3, -110.4, 0), Vector(0, 0, 1), 2),  # 20
    Part.LineSegment(Vector(107.8, -69.4, 0), Vector(107.8, -64.1, 0)),  # 21
    Part.ArcOfCircle(Part.Circle(Vector(109.3, -60.4, 0), Vector(0, 0, 1), 4), math.radians(112), math.radians(248)),  # 22
    Part.LineSegment(Vector(107.8, -56.6, 0), Vector(107.8, -51.4, 0)),  # 23
    Part.ArcOfCircle(Part.Circle(Vector(109.3, -51.4, 0), Vector(0, 0, 1), 1.5), math.radians(0), math.radians(180)),  # 24
    Part.LineSegment(Vector(110.8, -51.4, 0), Vector(110.8, -56.6, 0)),  # 25
    Part.ArcOfCircle(Part.Circle(Vector(109.3, -60.4, 0), Vector(0, 0, 1), 4), math.radians(-68), math.radians(68)),  # 26
    Part.LineSegment(Vector(110.8, -64.1, 0), Vector(110.8, -69.4, 0)),  # 27
    Part.ArcOfCircle(Part.Circle(Vector(109.3, -69.4, 0), Vector(0, 0, 1), 1.5), math.radians(180), math.radians(360)),  # 28
    Part.Circle(Vector(109.3, -60.4, 0), Vector(0, 0, 1), 2),  # 29
    Part.LineSegment(Vector(56.6, -11.9, 0), Vector(51.3, -11.9, 0)),  # 30
    Part.ArcOfCircle(Part.Circle(Vector(51.3, -10.4, 0), Vector(0, 0, 1), 1.5), math.radians(90), math.radians(270)),  # 31
    Part.LineSegment(Vector(51.3, -8.9, 0), Vector(56.6, -8.9, 0)),  # 32
    Part.ArcOfCircle(Part.Circle(Vector(60.3, -10.4, 0), Vector(0, 0, 1), 4), math.radians(22), math.radians(158)),  # 33
    Part.LineSegment(Vector(64, -8.9, 0), Vector(69.3, -8.9, 0)),  # 34
    Part.ArcOfCircle(Part.Circle(Vector(69.3, -10.4, 0), Vector(0, 0, 1), 1.5), math.radians(-90), math.radians(90)),  # 35
    Part.LineSegment(Vector(69.3, -11.9, 0), Vector(64, -11.9, 0)),  # 36
    Part.ArcOfCircle(Part.Circle(Vector(60.3, -10.4, 0), Vector(0, 0, 1), 4), math.radians(-158), math.radians(-22)),  # 37
    Part.Circle(Vector(60.3, -10.4, 0), Vector(0, 0, 1), 2),  # 38
    Part.LineSegment(Vector(9.8, -56.6, 0), Vector(9.8, -51.4, 0)),  # 39
    Part.ArcOfCircle(Part.Circle(Vector(11.3, -51.4, 0), Vector(0, 0, 1), 1.5), math.radians(0), math.radians(180)),  # 40
    Part.LineSegment(Vector(12.8, -51.4, 0), Vector(12.8, -56.6, 0)),  # 41
    Part.ArcOfCircle(Part.Circle(Vector(11.3, -60.4, 0), Vector(0, 0, 1), 4), math.radians(-68), math.radians(68)),  # 42
    Part.LineSegment(Vector(12.8, -64.1, 0), Vector(12.8, -69.4, 0)),  # 43
    Part.ArcOfCircle(Part.Circle(Vector(11.3, -69.4, 0), Vector(0, 0, 1), 1.5), math.radians(180), math.radians(360)),  # 44
    Part.LineSegment(Vector(9.8, -69.4, 0), Vector(9.8, -64.1, 0)),  # 45
    Part.ArcOfCircle(Part.Circle(Vector(11.3, -60.4, 0), Vector(0, 0, 1), 4), math.radians(112), math.radians(248)),  # 46
    Part.Circle(Vector(11.3, -60.4, 0), Vector(0, 0, 1), 2),  # 47
], False)
sketch4.addConstraint([
    Sketcher.Constraint("Coincident", 12, 2, 13, 2),
    Sketcher.Constraint("Coincident", 13, 1, 14, 1),
    Sketcher.Constraint("Tangent", 14, 2, 15, 2),
    Sketcher.Constraint("Tangent", 15, 1, 16, 1),
    Sketcher.Constraint("Coincident", 16, 2, 17, 2),
    Sketcher.Constraint("Coincident", 17, 1, 18, 1),
    Sketcher.Constraint("Tangent", 18, 2, 19, 2),
    Sketcher.Constraint("Tangent", 19, 1, 12, 1),
    Sketcher.Constraint("Coincident", 21, 2, 22, 2),
    Sketcher.Constraint("Coincident", 22, 1, 23, 1),
    Sketcher.Constraint("Tangent", 23, 2, 24, 2),
    Sketcher.Constraint("Tangent", 24, 1, 25, 1),
    Sketcher.Constraint("Coincident", 25, 2, 26, 2),
    Sketcher.Constraint("Coincident", 26, 1, 27, 1),
    Sketcher.Constraint("Tangent", 27, 2, 28, 2),
    Sketcher.Constraint("Tangent", 28, 1, 21, 1),
    Sketcher.Constraint("Tangent", 30, 2, 31, 2),
    Sketcher.Constraint("Tangent", 31, 1, 32, 1),
    Sketcher.Constraint("Coincident", 32, 2, 33, 2),
    Sketcher.Constraint("Coincident", 33, 1, 34, 1),
    Sketcher.Constraint("Tangent", 34, 2, 35, 2),
    Sketcher.Constraint("Tangent", 35, 1, 36, 1),
    Sketcher.Constraint("Coincident", 36, 2, 37, 2),
    Sketcher.Constraint("Coincident", 37, 1, 30, 1),
    Sketcher.Constraint("Tangent", 39, 2, 40, 2),
    Sketcher.Constraint("Tangent", 40, 1, 41, 1),
    Sketcher.Constraint("Coincident", 41, 2, 42, 2),
    Sketcher.Constraint("Coincident", 42, 1, 43, 1),
    Sketcher.Constraint("Tangent", 43, 2, 44, 2),
    Sketcher.Constraint("Tangent", 44, 1, 45, 1),
    Sketcher.Constraint("Coincident", 45, 2, 46, 2),
    Sketcher.Constraint("Coincident", 46, 1, 39, 1),
    Sketcher.Constraint("Horizontal", 12),
    Sketcher.Constraint("Horizontal", 14),
    Sketcher.Constraint("Horizontal", 16),
    Sketcher.Constraint("Horizontal", 18),
    Sketcher.Constraint("Vertical", 21),
    Sketcher.Constraint("Vertical", 23),
    Sketcher.Constraint("Vertical", 25),
    Sketcher.Constraint("Vertical", 27),
    Sketcher.Constraint("Horizontal", 30),
    Sketcher.Constraint("Horizontal", 32),
    Sketcher.Constraint("Horizontal", 34),
    Sketcher.Constraint("Horizontal", 36),
    Sketcher.Constraint("Vertical", 39),
    Sketcher.Constraint("Vertical", 41),
    Sketcher.Constraint("Vertical", 43),
    Sketcher.Constraint("Vertical", 45),
    Sketcher.Constraint("Coincident", 1, 3, 0, 3),
    Sketcher.Constraint("Coincident", 4, 3, 3, 3),
    Sketcher.Constraint("Coincident", 8, 3, 7, 3),
    Sketcher.Constraint("Coincident", 10, 3, 9, 3),
    Sketcher.Constraint("Coincident", 17, 3, 13, 3),
    Sketcher.Constraint("Coincident", 20, 3, 13, 3),
    Sketcher.Constraint("Coincident", 26, 3, 22, 3),
    Sketcher.Constraint("Coincident", 29, 3, 22, 3),
    Sketcher.Constraint("Coincident", 37, 3, 33, 3),
    Sketcher.Constraint("Coincident", 38, 3, 33, 3),
    Sketcher.Constraint("Coincident", 46, 3, 42, 3),
    Sketcher.Constraint("Coincident", 47, 3, 42, 3),
    Sketcher.Constraint("Equal", 0, 3),
    Sketcher.Constraint("Equal", 1, 4),
    Sketcher.Constraint("Equal", 2, 5),
    Sketcher.Constraint("Equal", 5, 6),
    Sketcher.Constraint("Equal", 3, 7),
    Sketcher.Constraint("Equal", 4, 8),
    Sketcher.Constraint("Equal", 7, 9),
    Sketcher.Constraint("Equal", 8, 10),
    Sketcher.Constraint("Equal", 6, 11),
    Sketcher.Constraint("Equal", 11, 13),
    Sketcher.Constraint("Equal", 13, 17),
    Sketcher.Constraint("Equal", 15, 19),
    Sketcher.Constraint("Equal", 10, 20),
    Sketcher.Constraint("Equal", 17, 22),
    Sketcher.Constraint("Equal", 19, 24),
    Sketcher.Constraint("Equal", 22, 26),
    Sketcher.Constraint("Equal", 24, 28),
    Sketcher.Constraint("Equal", 20, 29),
    Sketcher.Constraint("Equal", 28, 31),
    Sketcher.Constraint("Equal", 26, 33),
    Sketcher.Constraint("Equal", 31, 35),
    Sketcher.Constraint("Equal", 33, 37),
    Sketcher.Constraint("Equal", 29, 38),
    Sketcher.Constraint("Equal", 35, 40),
    Sketcher.Constraint("Equal", 37, 42),
    Sketcher.Constraint("Equal", 40, 44),
    Sketcher.Constraint("Equal", 42, 46),
    Sketcher.Constraint("Equal", 38, 47),
    Sketcher.Constraint("Horizontal", 2, 3, 6, 3),
    Sketcher.Constraint("Horizontal", 1, 3, 7, 3),
    Sketcher.Constraint("Horizontal", 4, 3, 9, 3),
    Sketcher.Constraint("Horizontal", 5, 3, 11, 3),
    Sketcher.Constraint("Horizontal", 13, 3, 15, 3),
    Sketcher.Constraint("Horizontal", 17, 3, 19, 3),
    Sketcher.Constraint("Horizontal", 31, 3, 33, 3),
    Sketcher.Constraint("Horizontal", 33, 3, 35, 3),
    Sketcher.Constraint("Horizontal", 24, 3, 40, 3),
    Sketcher.Constraint("Horizontal", 29, 3, 42, 3),
    Sketcher.Constraint("Horizontal", 28, 3, 44, 3),
    Sketcher.Constraint("Horizontal", 22, 1, 25, 2),
    Sketcher.Constraint("Horizontal", 21, 2, 26, 1),
    Sketcher.Constraint("Horizontal", 25, 2, 41, 2),
    Sketcher.Constraint("Horizontal", 26, 1, 42, 1),
    Sketcher.Constraint("Vertical", 1, 3, 2, 3),
    Sketcher.Constraint("Vertical", 2, 3, 3, 3),
    Sketcher.Constraint("Vertical", 4, 3, 5, 3),
    Sketcher.Constraint("Vertical", 6, 3, 7, 3),
    Sketcher.Constraint("Vertical", 8, 3, 9, 3),
    Sketcher.Constraint("Vertical", 10, 3, 11, 3),
    Sketcher.Constraint("Vertical", 11, 3, 22, 3),
    Sketcher.Constraint("Vertical", 15, 3, 31, 3),
    Sketcher.Constraint("Vertical", 20, 3, 33, 3),
    Sketcher.Constraint("Vertical", 19, 3, 35, 3),
    Sketcher.Constraint("Vertical", 5, 3, 40, 3),
    Sketcher.Constraint("Equal", 12, 14),
    Sketcher.Constraint("Equal", 36, 21),
    Sketcher.Constraint("Equal", 21, 23),
    Sketcher.Constraint("Diameter", 0, 9.0),
    Sketcher.Constraint("Diameter", 1, 4.0),
    Sketcher.Constraint("Diameter", 2, 8.0),
    Sketcher.Constraint("Radius", 15, 1.5),
    Sketcher.Constraint("DistanceX", 12, 2, 12, 1, 5.291901),
    Sketcher.Constraint("DistanceX", -1, 1, 0, 3, 11.340909),
    Sketcher.Constraint("DistanceY", 0, 3, -1, 1, 79.355951),
    Sketcher.Constraint("DistanceY", 2, 3, -1, 1, 88.355951),
    Sketcher.Constraint("DistanceY", 3, 3, -1, 1, 41.355951),
    Sketcher.Constraint("DistanceY", 5, 3, -1, 1, 32.355951),
    Sketcher.Constraint("DistanceX", -1, 1, 6, 3, 109.340909),
    Sketcher.Constraint("DistanceX", -1, 1, 13, 3, 60.340909),
    Sketcher.Constraint("DistanceY", 13, 3, -1, 1, 110.355951),
    Sketcher.Constraint("DistanceY", 22, 3, -1, 1, 60.355951),
    Sketcher.Constraint("DistanceY", 31, 3, -1, 1, 10.355951),
])
pad2 = body.newObject("PartDesign::Pad", "Pad001")
pad2.Profile = sketch4
pad2.Length = 4.3
pad2.Reversed = True

# Sketch on XZ plane
sketch5 = body.newObject("Sketcher::SketchObject", "Sketch004")
sketch5.AttachmentSupport = (doc.getObject("XZ_Plane"), [""])
sketch5.MapMode = "FlatFace"
sketch5.AttachmentOffset = App.Placement(Vector(0, 0, -7.15), App.Rotation())
sketch5.addGeometry([
    Part.Circle(Vector(11.3, -88.4, 0), Vector(0, 0, 1), 1.6),
    Part.Circle(Vector(11.3, -32.4, 0), Vector(0, 0, 1), 1.6),
    Part.Circle(Vector(109.3, -32.4, 0), Vector(0, 0, 1), 1.6),
    Part.Circle(Vector(109.3, -88.4, 0), Vector(0, 0, 1), 1.6),
], False)
sketch5.addConstraint([
    Sketcher.Constraint("Equal", 0, 1),
    Sketcher.Constraint("Equal", 1, 2),
    Sketcher.Constraint("Equal", 2, 3),
    Sketcher.Constraint("Horizontal", 1, 3, 2, 3),
    Sketcher.Constraint("Horizontal", 0, 3, 3, 3),
    Sketcher.Constraint("Vertical", 0, 3, 1, 3),
    Sketcher.Constraint("Vertical", 2, 3, 3, 3),
    Sketcher.Constraint("Diameter", 0, 3.15),
    Sketcher.Constraint("DistanceY", 0, 3, 1, 3, 56.0),
    Sketcher.Constraint("DistanceX", 1, 3, 2, 3, 98.0),
    Sketcher.Constraint("DistanceX", -1, 1, 0, 3, 11.340909),
    Sketcher.Constraint("DistanceY", 0, 3, -1, 1, 88.355951),
])
doc.recompute()
hole = body.newObject("PartDesign::Hole", "Hole")
hole.Profile = sketch5
hole.ThreadType = "None"
hole.Diameter = 3.15
hole.DepthType = "Dimension"
hole.Depth = 4
hole.DrillPoint = "Angled"
hole.DrillPointAngle = 118
hole.Reversed = True

# Sketch on XY plane
sketch6 = body.newObject("Sketcher::SketchObject", "Sketch005")
sketch6.AttachmentSupport = (doc.getObject("XY_Plane"), [""])
sketch6.MapMode = "FlatFace"
sketch6.AttachmentOffset = App.Placement(Vector(0, 0, -0.340909), App.Rotation())
sketch6.addGeometry(Part.Circle(Vector(32, 17, 0), Vector(0, 0, 1), 5), False)
sketch6.addConstraint([
    Sketcher.Constraint("Diameter", 0, 10.0),
    Sketcher.Constraint("DistanceY", -1, 1, 0, 3, 17.25),
    Sketcher.Constraint("DistanceX", -1, 1, 0, 3, 32.002051),
])
pocket3 = body.newObject("PartDesign::Pocket", "Pocket002")
pocket3.Profile = sketch6
pocket3.Type = "UpToFirst"

# Sketch on XY plane
sketch7 = body.newObject("Sketcher::SketchObject", "Sketch006")
sketch7.AttachmentSupport = (doc.getObject("XY_Plane"), [""])
sketch7.MapMode = "FlatFace"
sketch7.AttachmentOffset = App.Placement(Vector(0, 0, -0.340909), App.Rotation())
sketch7.addGeometry(Part.Circle(Vector(66, 16, 0), Vector(0, 0, 1), 5), False)
sketch7.addConstraint([
    Sketcher.Constraint("Diameter", 0, 10.0),
    Sketcher.Constraint("DistanceY", -1, 1, 0, 3, 16.3),
    Sketcher.Constraint("DistanceX", -1, 1, 0, 3, 66.052051),
])
pocket4 = body.newObject("PartDesign::Pocket", "Pocket003")
pocket4.Profile = sketch7
pocket4.Type = "UpToFirst"

# Sketch on XY plane
sketch8 = body.newObject("Sketcher::SketchObject", "Sketch007")
sketch8.AttachmentSupport = (doc.getObject("XY_Plane"), [""])
sketch8.MapMode = "FlatFace"
sketch8.AttachmentOffset = App.Placement(Vector(0, 0, -0.340909), App.Rotation())
sketch8.addGeometry(Part.Circle(Vector(88, 20, 0), Vector(0, 0, 1), 6), False)
sketch8.addConstraint([
    Sketcher.Constraint("Diameter", 0, 12.0),
    Sketcher.Constraint("DistanceY", -1, 1, 0, 3, 20.2),
    Sketcher.Constraint("DistanceX", -1, 1, 0, 3, 87.840909),
])
pocket5 = body.newObject("PartDesign::Pocket", "Pocket004")
pocket5.Profile = sketch8
pocket5.Type = "UpToFirst"

doc.recompute()
